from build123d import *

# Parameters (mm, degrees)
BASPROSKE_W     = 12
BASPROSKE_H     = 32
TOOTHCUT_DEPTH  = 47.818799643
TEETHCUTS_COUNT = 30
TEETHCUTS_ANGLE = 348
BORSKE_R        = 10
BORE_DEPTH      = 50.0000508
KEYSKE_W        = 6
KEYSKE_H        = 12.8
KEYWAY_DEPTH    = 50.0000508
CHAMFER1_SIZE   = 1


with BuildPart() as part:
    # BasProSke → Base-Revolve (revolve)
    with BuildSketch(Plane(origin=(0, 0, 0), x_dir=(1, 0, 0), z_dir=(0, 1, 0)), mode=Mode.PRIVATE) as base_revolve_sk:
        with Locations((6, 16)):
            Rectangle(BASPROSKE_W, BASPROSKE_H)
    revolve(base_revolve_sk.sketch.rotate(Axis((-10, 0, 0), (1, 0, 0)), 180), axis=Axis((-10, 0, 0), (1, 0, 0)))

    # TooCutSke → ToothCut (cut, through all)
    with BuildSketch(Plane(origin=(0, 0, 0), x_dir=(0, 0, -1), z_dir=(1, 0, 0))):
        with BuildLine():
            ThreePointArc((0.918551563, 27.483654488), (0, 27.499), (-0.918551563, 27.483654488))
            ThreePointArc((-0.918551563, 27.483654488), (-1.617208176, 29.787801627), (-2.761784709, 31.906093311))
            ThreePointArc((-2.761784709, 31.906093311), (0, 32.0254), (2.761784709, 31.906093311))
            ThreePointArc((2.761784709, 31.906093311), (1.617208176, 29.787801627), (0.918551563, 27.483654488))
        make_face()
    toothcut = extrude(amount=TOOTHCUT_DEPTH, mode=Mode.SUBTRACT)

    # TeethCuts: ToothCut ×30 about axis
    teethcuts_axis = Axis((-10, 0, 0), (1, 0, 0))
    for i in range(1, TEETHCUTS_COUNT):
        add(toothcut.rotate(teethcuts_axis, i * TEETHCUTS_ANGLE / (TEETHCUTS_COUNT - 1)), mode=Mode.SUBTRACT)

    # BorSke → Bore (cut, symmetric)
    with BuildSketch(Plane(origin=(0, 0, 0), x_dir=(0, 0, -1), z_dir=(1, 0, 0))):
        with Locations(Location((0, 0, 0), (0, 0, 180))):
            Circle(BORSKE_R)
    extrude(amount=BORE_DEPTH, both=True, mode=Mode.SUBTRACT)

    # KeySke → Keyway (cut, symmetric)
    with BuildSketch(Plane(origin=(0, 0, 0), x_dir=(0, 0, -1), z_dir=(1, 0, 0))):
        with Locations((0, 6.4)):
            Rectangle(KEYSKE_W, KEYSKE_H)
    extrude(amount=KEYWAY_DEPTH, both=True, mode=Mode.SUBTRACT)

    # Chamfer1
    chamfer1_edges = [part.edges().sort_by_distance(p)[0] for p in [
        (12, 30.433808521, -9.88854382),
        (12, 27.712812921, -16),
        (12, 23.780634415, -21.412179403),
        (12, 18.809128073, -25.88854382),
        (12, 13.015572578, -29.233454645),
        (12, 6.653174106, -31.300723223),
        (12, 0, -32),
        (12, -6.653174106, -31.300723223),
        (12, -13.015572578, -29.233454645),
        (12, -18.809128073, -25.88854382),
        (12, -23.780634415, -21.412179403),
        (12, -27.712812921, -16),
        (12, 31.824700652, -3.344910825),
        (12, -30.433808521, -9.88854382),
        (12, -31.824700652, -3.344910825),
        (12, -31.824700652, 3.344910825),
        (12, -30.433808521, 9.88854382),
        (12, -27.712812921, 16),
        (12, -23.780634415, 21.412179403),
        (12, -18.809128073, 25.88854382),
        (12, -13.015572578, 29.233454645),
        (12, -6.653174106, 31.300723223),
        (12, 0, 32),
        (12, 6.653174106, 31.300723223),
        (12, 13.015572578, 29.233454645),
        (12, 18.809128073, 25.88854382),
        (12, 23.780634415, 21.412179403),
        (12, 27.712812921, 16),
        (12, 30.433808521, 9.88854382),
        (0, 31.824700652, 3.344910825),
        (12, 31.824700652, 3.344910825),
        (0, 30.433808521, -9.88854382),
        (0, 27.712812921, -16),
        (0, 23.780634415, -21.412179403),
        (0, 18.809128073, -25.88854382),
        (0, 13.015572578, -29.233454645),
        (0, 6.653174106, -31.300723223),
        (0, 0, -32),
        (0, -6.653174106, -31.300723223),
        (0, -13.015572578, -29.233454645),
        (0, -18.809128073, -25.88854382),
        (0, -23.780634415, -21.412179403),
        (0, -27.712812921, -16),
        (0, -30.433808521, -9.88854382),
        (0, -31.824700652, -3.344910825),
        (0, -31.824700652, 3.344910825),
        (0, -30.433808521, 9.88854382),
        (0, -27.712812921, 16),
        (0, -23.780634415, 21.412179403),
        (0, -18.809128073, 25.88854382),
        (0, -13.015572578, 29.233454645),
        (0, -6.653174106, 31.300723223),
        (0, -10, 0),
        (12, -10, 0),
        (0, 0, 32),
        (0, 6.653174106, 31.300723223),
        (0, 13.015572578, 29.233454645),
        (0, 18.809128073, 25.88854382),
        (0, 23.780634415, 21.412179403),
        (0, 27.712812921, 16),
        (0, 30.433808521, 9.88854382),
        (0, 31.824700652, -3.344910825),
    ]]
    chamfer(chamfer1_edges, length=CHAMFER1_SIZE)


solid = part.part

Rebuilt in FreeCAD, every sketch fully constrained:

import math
import FreeCAD as App
import Part
import Sketcher
Q = App.Units.Quantity


def edges_at(feature, points):
    """Names of the edges that pass closest to the given points."""
    edges = feature.Shape.Edges
    near = lambda p: min(range(len(edges)), key=lambda i: edges[i].distToShape(Part.Vertex(*p))[0])
    return sorted({f"Edge{near(p) + 1}" for p in points})


def add_polygon(sketch, points):
    """Adds a closed chain of lines whose ends are joined by coincident constraints."""
    first, n = sketch.GeometryCount, len(points)
    for a, b in zip(points, points[1:] + points[:1]):
        sketch.addGeometry(Part.LineSegment(App.Vector(*a, 0), App.Vector(*b, 0)), False)
    for i in range(n):
        sketch.addConstraint(Sketcher.Constraint("Coincident", first + i, 2, first + (i + 1) % n, 1))

doc = App.newDocument("Part")
params = doc.addObject("Spreadsheet::Sheet", "Params")
for row, (alias, value) in enumerate([
    ("sketch1_width", "12 mm"),
    ("sketch1_height", "32 mm"),
    ("revolution_angle", "360 deg"),
    ("sketch2_radius", "12 mm"),
    ("sketch3_diameter", "20 mm"),
    ("pocket2_length", "100.000102 mm"),
    ("sketch4_height", "6 mm"),
    ("sketch4_width", "12.8 mm"),
    ("pocket3_length", "100.000102 mm"),
    ("chamfer_size", "1 mm"),
], start=1):
    params.set(f"A{row}", alias)
    params.set(f"B{row}", "=" + value)
    params.setAlias(f"B{row}", alias)

body = doc.addObject("PartDesign::Body", "Body")

# Sketch on XZ plane
sketch1 = body.newObject("Sketcher::SketchObject", "Sketch")
sketch1.AttachmentSupport = (doc.getObject("XZ_Plane"), [""])
sketch1.MapMode = "FlatFace"
add_polygon(sketch1, [(0, -32), (0, 0), (12, 0), (12, -32)])  # lines 0-3
sketch1.addConstraint([
    Sketcher.Constraint("Vertical", 0),
    Sketcher.Constraint("Horizontal", 1),
    Sketcher.Constraint("Vertical", 2),
    Sketcher.Constraint("Horizontal", 3),
    Sketcher.Constraint("Coincident", 0, 2, -1, 1),
    Sketcher.Constraint("DistanceX", 1, 1, 1, 2, Q("12 mm")),
    Sketcher.Constraint("DistanceY", 0, 1, 0, 2, Q("32 mm")),
])
sketch1.setExpression("Constraints[9]", "Params.sketch1_width")
sketch1.setExpression("Constraints[10]", "Params.sketch1_height")
revolution = body.newObject("PartDesign::Revolution", "Revolution")
revolution.Profile = sketch1
revolution.ReferenceAxis = (sketch1, ["H_Axis"])
revolution.setExpression("Angle", "Params.revolution_angle")

# Sketch on YZ plane
sketch2 = body.newObject("Sketcher::SketchObject", "Sketch001")
sketch2.AttachmentSupport = (doc.getObject("YZ_Plane"), [""])
sketch2.MapMode = "FlatFace"
sketch2.addGeometry([
    Part.ArcOfCircle(Part.Circle(App.Vector(0, 0, 0), App.Vector(0, 0, 1), 27.5), math.radians(-1.91), math.radians(1.91)),
    Part.ArcOfCircle(Part.Circle(App.Vector(25.2, -12.7, 0), App.Vector(0, 0, 1), 12), math.radians(56), math.radians(79)),
    Part.ArcOfCircle(Part.Circle(App.Vector(0, 0, 0), App.Vector(0, 0, 1), 32), math.radians(-4.95), math.radians(4.95)),
    Part.ArcOfCircle(Part.Circle(App.Vector(25.2, 12.7, 0), App.Vector(0, 0, 1), 12), math.radians(-79), math.radians(-56)),
], False)
sketch2.addConstraint([
    Sketcher.Constraint("Coincident", 0, 1, 1, 2),
    Sketcher.Constraint("Coincident", 1, 1, 2, 1),
    Sketcher.Constraint("Coincident", 2, 2, 3, 2),
    Sketcher.Constraint("Coincident", 3, 1, 0, 2),
    Sketcher.Constraint("Coincident", 0, 3, -1, 1),
    Sketcher.Constraint("Coincident", 2, 3, -1, 1),
    Sketcher.Constraint("Equal", 1, 3),
    Sketcher.Constraint("Symmetric", 1, 3, 3, 3, -1),
    Sketcher.Constraint("Radius", 1, Q("12 mm")),
    Sketcher.Constraint("Radius", 0, Q("27.499 mm")),
    Sketcher.Constraint("Radius", 2, Q("32.0254 mm")),
    Sketcher.Constraint("DistanceY", 1, 3, -1, 1, Q("12.693642 mm")),
    Sketcher.Constraint("DistanceY", 0, 1, -1, 1, Q("0.918552 mm")),
])
sketch2.setExpression("Constraints[8]", "Params.sketch2_radius")
pocket1 = body.newObject("PartDesign::Pocket", "Pocket")
pocket1.Profile = sketch2
pocket1.Type = "ThroughAll"
pocket1.Reversed = True
doc.recompute()

polarpattern = body.newObject("PartDesign::PolarPattern", "PolarPattern")
polarpattern.Originals = [pocket1]
polarpattern.Axis = (doc.getObject("X_Axis"), [""])
polarpattern.Angle = 360
polarpattern.Occurrences = 30
body.Tip = polarpattern

# Sketch on YZ plane
sketch3 = body.newObject("Sketcher::SketchObject", "Sketch002")
sketch3.AttachmentSupport = (doc.getObject("YZ_Plane"), [""])
sketch3.MapMode = "FlatFace"
sketch3.addGeometry(Part.Circle(App.Vector(0, 0, 0), App.Vector(0, 0, 1), 10), False)
sketch3.addConstraint([
    Sketcher.Constraint("Coincident", 0, 3, -1, 1),
    Sketcher.Constraint("Diameter", 0, Q("20 mm")),
])
sketch3.setExpression("Constraints[1]", "Params.sketch3_diameter")
pocket2 = body.newObject("PartDesign::Pocket", "Pocket001")
pocket2.Profile = sketch3
pocket2.setExpression("Length", "Params.pocket2_length")
pocket2.Midplane = True

# Sketch on YZ plane
sketch4 = body.newObject("Sketcher::SketchObject", "Sketch003")
sketch4.AttachmentSupport = (doc.getObject("YZ_Plane"), [""])
sketch4.MapMode = "FlatFace"
add_polygon(sketch4, [(13, 3), (0, 3), (0, -3), (13, -3)])  # lines 0-3
sketch4.addConstraint([
    Sketcher.Constraint("Horizontal", 0),
    Sketcher.Constraint("Vertical", 1),
    Sketcher.Constraint("Horizontal", 2),
    Sketcher.Constraint("Vertical", 3),
    Sketcher.Constraint("Symmetric", 0, 2, 1, 2, -1, 1),
    Sketcher.Constraint("DistanceY", 1, 2, 1, 1, Q("6 mm")),
    Sketcher.Constraint("DistanceX", 0, 2, 0, 1, Q("12.8 mm")),
])
sketch4.setExpression("Constraints[9]", "Params.sketch4_height")
sketch4.setExpression("Constraints[10]", "Params.sketch4_width")
pocket3 = body.newObject("PartDesign::Pocket", "Pocket002")
pocket3.Profile = sketch4
pocket3.setExpression("Length", "Params.pocket3_length")
pocket3.Midplane = True
doc.recompute()

chamfer = body.newObject("PartDesign::Chamfer", "Chamfer")
chamfer.Base = (pocket3, edges_at(pocket3, [
    (12, 30.434, -9.889),
    (12, 27.713, -16),
    (12, 23.781, -21.412),
    (12, 18.809, -25.889),
    (12, 13.016, -29.233),
    (12, 6.653, -31.301),
    (12, 0, -32),
    (12, -6.653, -31.301),
    (12, -13.016, -29.233),
    (12, -18.809, -25.889),
    (12, -23.781, -21.412),
    (12, -27.713, -16),
    (12, 31.825, -3.345),
    (12, -30.434, -9.889),
    (12, -31.825, -3.345),
    (12, -31.825, 3.345),
    (12, -30.434, 9.889),
    (12, -27.713, 16),
    (12, -23.781, 21.412),
    (12, -18.809, 25.889),
    (12, -13.016, 29.233),
    (12, -6.653, 31.301),
    (12, 0, 32),
    (12, 6.653, 31.301),
    (12, 13.016, 29.233),
    (12, 18.809, 25.889),
    (12, 23.781, 21.412),
    (12, 27.713, 16),
    (12, 30.434, 9.889),
    (0, 31.825, 3.345),
    (12, 31.825, 3.345),
    (0, 30.434, -9.889),
    (0, 27.713, -16),
    (0, 23.781, -21.412),
    (0, 18.809, -25.889),
    (0, 13.016, -29.233),
    (0, 6.653, -31.301),
    (0, 0, -32),
    (0, -6.653, -31.301),
    (0, -13.016, -29.233),
    (0, -18.809, -25.889),
    (0, -23.781, -21.412),
    (0, -27.713, -16),
    (0, -30.434, -9.889),
    (0, -31.825, -3.345),
    (0, -31.825, 3.345),
    (0, -30.434, 9.889),
    (0, -27.713, 16),
    (0, -23.781, 21.412),
    (0, -18.809, 25.889),
    (0, -13.016, 29.233),
    (0, -6.653, 31.301),
    (0, -10, 0),
    (12, -10, 0),
    (0, 0, 32),
    (0, 6.653, 31.301),
    (0, 13.016, 29.233),
    (0, 18.809, 25.889),
    (0, 23.781, 21.412),
    (0, 27.713, 16),
    (0, 30.434, 9.889),
    (0, 31.825, -3.345),
]))
chamfer.setExpression("Size", "Params.chamfer_size")

doc.recompute()
